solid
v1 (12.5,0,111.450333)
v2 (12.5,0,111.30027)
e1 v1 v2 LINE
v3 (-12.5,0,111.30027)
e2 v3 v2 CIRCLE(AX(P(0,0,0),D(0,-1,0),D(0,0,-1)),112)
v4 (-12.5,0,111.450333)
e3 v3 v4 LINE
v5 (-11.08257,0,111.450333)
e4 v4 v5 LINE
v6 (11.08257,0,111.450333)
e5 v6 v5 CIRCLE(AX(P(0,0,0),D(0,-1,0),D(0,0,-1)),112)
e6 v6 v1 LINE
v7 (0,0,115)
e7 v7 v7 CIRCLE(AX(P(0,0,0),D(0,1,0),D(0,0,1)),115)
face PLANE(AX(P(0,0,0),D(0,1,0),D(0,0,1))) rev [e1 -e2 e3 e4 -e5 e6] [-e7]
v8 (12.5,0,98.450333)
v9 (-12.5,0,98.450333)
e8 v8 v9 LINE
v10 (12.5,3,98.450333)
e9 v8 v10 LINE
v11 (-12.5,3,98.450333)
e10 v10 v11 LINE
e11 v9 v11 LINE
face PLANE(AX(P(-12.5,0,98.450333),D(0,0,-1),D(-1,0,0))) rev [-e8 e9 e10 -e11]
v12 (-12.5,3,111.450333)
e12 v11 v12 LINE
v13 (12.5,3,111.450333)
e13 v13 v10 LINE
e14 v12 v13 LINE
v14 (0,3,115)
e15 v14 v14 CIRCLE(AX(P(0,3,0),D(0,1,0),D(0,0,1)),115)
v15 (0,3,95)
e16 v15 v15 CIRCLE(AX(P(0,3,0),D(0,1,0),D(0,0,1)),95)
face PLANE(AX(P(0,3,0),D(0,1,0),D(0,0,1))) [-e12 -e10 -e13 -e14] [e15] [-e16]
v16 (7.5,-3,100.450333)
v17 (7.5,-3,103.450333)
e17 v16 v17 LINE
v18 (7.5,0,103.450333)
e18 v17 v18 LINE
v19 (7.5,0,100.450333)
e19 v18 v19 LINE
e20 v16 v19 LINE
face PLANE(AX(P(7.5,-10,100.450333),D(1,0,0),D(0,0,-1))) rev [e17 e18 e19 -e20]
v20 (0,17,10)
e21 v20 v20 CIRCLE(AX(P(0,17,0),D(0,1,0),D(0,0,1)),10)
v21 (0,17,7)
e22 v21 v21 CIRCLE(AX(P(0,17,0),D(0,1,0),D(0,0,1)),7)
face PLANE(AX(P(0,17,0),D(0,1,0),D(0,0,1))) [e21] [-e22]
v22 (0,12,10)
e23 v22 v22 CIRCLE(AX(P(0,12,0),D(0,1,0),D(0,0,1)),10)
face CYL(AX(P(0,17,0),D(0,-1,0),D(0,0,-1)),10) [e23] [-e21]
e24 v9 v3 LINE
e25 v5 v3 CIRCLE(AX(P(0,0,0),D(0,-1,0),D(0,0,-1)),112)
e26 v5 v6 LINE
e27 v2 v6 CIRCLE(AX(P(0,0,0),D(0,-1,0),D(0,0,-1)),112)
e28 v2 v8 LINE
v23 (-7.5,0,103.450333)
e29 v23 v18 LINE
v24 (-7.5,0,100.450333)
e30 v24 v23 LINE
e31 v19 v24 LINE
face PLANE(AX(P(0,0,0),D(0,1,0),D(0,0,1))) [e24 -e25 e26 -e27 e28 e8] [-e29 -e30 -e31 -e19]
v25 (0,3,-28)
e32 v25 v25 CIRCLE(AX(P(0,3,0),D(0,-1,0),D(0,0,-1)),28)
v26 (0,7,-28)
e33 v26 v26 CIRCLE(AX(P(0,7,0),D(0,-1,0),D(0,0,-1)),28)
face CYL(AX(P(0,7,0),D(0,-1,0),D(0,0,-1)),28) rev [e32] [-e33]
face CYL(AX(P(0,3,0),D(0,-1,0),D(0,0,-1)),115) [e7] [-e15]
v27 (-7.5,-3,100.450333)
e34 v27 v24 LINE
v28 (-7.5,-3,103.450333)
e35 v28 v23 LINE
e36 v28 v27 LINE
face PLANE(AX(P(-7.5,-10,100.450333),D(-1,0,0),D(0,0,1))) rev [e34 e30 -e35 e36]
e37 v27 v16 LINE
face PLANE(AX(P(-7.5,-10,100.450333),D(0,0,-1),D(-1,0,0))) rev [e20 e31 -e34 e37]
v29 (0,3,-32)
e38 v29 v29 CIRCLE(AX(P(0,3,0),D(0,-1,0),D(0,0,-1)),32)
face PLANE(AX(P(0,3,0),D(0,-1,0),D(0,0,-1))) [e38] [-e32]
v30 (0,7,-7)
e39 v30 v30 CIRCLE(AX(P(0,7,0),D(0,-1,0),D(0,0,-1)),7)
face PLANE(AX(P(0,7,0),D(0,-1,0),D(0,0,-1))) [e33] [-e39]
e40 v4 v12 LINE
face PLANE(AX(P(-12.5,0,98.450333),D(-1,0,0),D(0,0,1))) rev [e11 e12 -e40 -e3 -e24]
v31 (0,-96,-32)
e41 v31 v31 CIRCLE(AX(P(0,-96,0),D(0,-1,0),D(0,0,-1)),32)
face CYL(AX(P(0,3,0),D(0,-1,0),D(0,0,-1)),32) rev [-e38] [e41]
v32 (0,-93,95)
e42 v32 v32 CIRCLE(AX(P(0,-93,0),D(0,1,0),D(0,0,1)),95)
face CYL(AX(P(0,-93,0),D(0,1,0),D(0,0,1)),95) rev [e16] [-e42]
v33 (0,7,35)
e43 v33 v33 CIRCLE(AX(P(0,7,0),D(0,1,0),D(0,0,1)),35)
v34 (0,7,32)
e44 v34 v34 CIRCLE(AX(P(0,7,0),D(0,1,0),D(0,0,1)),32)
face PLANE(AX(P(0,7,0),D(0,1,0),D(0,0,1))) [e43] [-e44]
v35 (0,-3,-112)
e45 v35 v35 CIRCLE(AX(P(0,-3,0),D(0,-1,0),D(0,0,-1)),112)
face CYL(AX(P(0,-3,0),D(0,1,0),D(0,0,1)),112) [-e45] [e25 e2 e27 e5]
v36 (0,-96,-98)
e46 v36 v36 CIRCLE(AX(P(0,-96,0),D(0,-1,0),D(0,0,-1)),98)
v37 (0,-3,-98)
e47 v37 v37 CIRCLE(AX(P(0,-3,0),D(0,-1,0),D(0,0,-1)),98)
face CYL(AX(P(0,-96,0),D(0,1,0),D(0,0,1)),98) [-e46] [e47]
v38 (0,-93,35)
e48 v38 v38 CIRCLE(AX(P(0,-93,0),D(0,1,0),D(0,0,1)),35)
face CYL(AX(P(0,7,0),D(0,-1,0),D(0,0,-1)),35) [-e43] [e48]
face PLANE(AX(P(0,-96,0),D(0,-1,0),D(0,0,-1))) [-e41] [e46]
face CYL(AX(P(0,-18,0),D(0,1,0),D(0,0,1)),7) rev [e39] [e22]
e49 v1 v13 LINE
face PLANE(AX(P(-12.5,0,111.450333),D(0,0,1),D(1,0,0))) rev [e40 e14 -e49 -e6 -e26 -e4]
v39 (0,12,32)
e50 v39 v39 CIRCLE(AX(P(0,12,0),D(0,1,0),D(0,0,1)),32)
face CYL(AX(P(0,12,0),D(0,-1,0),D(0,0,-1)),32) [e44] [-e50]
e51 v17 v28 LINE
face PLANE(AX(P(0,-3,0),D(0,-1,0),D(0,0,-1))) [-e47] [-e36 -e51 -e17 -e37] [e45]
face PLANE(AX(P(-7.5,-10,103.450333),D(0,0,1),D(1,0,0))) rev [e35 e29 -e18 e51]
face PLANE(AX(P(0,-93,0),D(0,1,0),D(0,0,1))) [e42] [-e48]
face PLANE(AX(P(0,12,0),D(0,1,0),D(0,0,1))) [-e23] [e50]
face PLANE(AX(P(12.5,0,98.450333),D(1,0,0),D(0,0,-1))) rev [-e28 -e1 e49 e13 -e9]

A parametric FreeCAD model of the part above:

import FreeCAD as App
import Part
import Sketcher

V = App.Vector


def add_polygon(sketch, points):
    """Adds a closed chain of lines whose ends are joined by coincident constraints."""
    first, n = sketch.GeometryCount, len(points)
    for a, b in zip(points, points[1:] + points[:1]):
        sketch.addGeometry(Part.LineSegment(App.Vector(*a, 0), App.Vector(*b, 0)), False)
    for i in range(n):
        sketch.addConstraint(Sketcher.Constraint("Coincident", first + i, 2, first + (i + 1) % n, 1))

doc = App.newDocument("Part")
body = doc.addObject("PartDesign::Body", "Body")

# Sketch on XZ plane
sketch1 = body.newObject("Sketcher::SketchObject", "Sketch")
sketch1.AttachmentSupport = (doc.getObject("XZ_Plane"), [""])
sketch1.MapMode = "FlatFace"
sketch1.addGeometry(Part.Circle(V(0, 0, 0), V(0, 0, 1), 115), False)
sketch1.addConstraint([
    Sketcher.Constraint("Coincident", 0, 3, -1, 1),
    Sketcher.Constraint("Diameter", 0, 230.0),
])
pad1 = body.newObject("PartDesign::Pad", "Pad")
pad1.Profile = sketch1
pad1.Length = 3
pad1.Reversed = True

# Sketch on XZ plane
sketch2 = body.newObject("Sketcher::SketchObject", "Sketch001")
sketch2.AttachmentSupport = (doc.getObject("XZ_Plane"), [""])
sketch2.MapMode = "FlatFace"
sketch2.addGeometry(Part.Circle(V(0, 0, 0), V(0, 0, 1), 112), False)
sketch2.addConstraint([
    Sketcher.Constraint("Coincident", 0, 3, -1, 1),
    Sketcher.Constraint("Diameter", 0, 224.0),
])
pad2 = body.newObject("PartDesign::Pad", "Pad001")
pad2.Profile = sketch2
pad2.Length = 3

# Sketch on XZ plane
sketch3 = body.newObject("Sketcher::SketchObject", "Sketch002")
sketch3.AttachmentSupport = (doc.getObject("XZ_Plane"), [""])
sketch3.MapMode = "FlatFace"
sketch3.AttachmentOffset = App.Placement(V(0, 0, 3), App.Rotation())
sketch3.addGeometry(Part.Circle(V(0, 0, 0), V(0, 0, 1), 98), False)
sketch3.addConstraint([
    Sketcher.Constraint("Coincident", 0, 3, -1, 1),
    Sketcher.Constraint("Diameter", 0, 196.0),
])
pad3 = body.newObject("PartDesign::Pad", "Pad002")
pad3.Profile = sketch3
pad3.Length = 93

# Sketch on XZ plane
sketch4 = body.newObject("Sketcher::SketchObject", "Sketch003")
sketch4.AttachmentSupport = (doc.getObject("XZ_Plane"), [""])
sketch4.MapMode = "FlatFace"
sketch4.AttachmentOffset = App.Placement(V(0, 0, -3), App.Rotation())
sketch4.addGeometry(Part.Circle(V(0, 0, 0), V(0, 0, 1), 95), False)
sketch4.addConstraint([
    Sketcher.Constraint("Coincident", 0, 3, -1, 1),
    Sketcher.Constraint("Diameter", 0, 190.0),
])
pocket1 = body.newObject("PartDesign::Pocket", "Pocket")
pocket1.Profile = sketch4
pocket1.Length = 96
pocket1.Reversed = True

# Sketch on XZ plane
sketch5 = body.newObject("Sketcher::SketchObject", "Sketch004")
sketch5.AttachmentSupport = (doc.getObject("XZ_Plane"), [""])
sketch5.MapMode = "FlatFace"
sketch5.AttachmentOffset = App.Placement(V(0, 0, 93), App.Rotation())
sketch5.addGeometry(Part.Circle(V(0, 0, 0), V(0, 0, 1), 35), False)
sketch5.addConstraint([
    Sketcher.Constraint("Coincident", 0, 3, -1, 1),
    Sketcher.Constraint("Diameter", 0, 70.0),
])
pad4 = body.newObject("PartDesign::Pad", "Pad003")
pad4.Profile = sketch5
pad4.Length = 100
pad4.Reversed = True

# Sketch on XZ plane
sketch6 = body.newObject("Sketcher::SketchObject", "Sketch005")
sketch6.AttachmentSupport = (doc.getObject("XZ_Plane"), [""])
sketch6.MapMode = "FlatFace"
sketch6.AttachmentOffset = App.Placement(V(0, 0, -7), App.Rotation())
sketch6.addGeometry(Part.Circle(V(0, 0, 0), V(0, 0, 1), 32), False)
sketch6.addConstraint([
    Sketcher.Constraint("Coincident", 0, 3, -1, 1),
    Sketcher.Constraint("Diameter", 0, 64.0),
])
pad5 = body.newObject("PartDesign::Pad", "Pad004")
pad5.Profile = sketch6
pad5.Length = 5
pad5.Reversed = True

# Sketch on XZ plane
sketch7 = body.newObject("Sketcher::SketchObject", "Sketch006")
sketch7.AttachmentSupport = (doc.getObject("XZ_Plane"), [""])
sketch7.MapMode = "FlatFace"
sketch7.AttachmentOffset = App.Placement(V(0, 0, 96), App.Rotation())
sketch7.addGeometry(Part.Circle(V(0, 0, 0), V(0, 0, 1), 32), False)
sketch7.addConstraint([
    Sketcher.Constraint("Coincident", 0, 3, -1, 1),
    Sketcher.Constraint("Diameter", 0, 64.0),
])
pocket2 = body.newObject("PartDesign::Pocket", "Pocket001")
pocket2.Profile = sketch7
pocket2.Length = 99

# Sketch on XZ plane
sketch8 = body.newObject("Sketcher::SketchObject", "Sketch007")
sketch8.AttachmentSupport = (doc.getObject("XZ_Plane"), [""])
sketch8.MapMode = "FlatFace"
sketch8.AttachmentOffset = App.Placement(V(0, 0, -3), App.Rotation())
sketch8.addGeometry(Part.Circle(V(0, 0, 0), V(0, 0, 1), 28), False)
sketch8.addConstraint([
    Sketcher.Constraint("Coincident", 0, 3, -1, 1),
    Sketcher.Constraint("Diameter", 0, 56.0),
])
pocket3 = body.newObject("PartDesign::Pocket", "Pocket002")
pocket3.Profile = sketch8
pocket3.Length = 4

# Sketch on XZ plane
sketch9 = body.newObject("Sketcher::SketchObject", "Sketch008")
sketch9.AttachmentSupport = (doc.getObject("XZ_Plane"), [""])
sketch9.MapMode = "FlatFace"
sketch9.AttachmentOffset = App.Placement(V(0, 0, -12), App.Rotation())
sketch9.addGeometry(Part.Circle(V(0, 0, 0), V(0, 0, 1), 10), False)
sketch9.addConstraint([
    Sketcher.Constraint("Coincident", 0, 3, -1, 1),
    Sketcher.Constraint("Diameter", 0, 20.0),
])
pad6 = body.newObject("PartDesign::Pad", "Pad005")
pad6.Profile = sketch9
pad6.Length = 5
pad6.Reversed = True

# Sketch on XZ plane
sketch10 = body.newObject("Sketcher::SketchObject", "Sketch009")
sketch10.AttachmentSupport = (doc.getObject("XZ_Plane"), [""])
sketch10.MapMode = "FlatFace"
sketch10.AttachmentOffset = App.Placement(V(0, 0, -17), App.Rotation())
sketch10.addGeometry(Part.Circle(V(0, 0, 0), V(0, 0, 1), 7), False)
sketch10.addConstraint([
    Sketcher.Constraint("Coincident", 0, 3, -1, 1),
    Sketcher.Constraint("Diameter", 0, 14.0),
])
pocket4 = body.newObject("PartDesign::Pocket", "Pocket003")
pocket4.Profile = sketch10
pocket4.Length = 35
pocket4.Reversed = True

# Sketch on XZ plane
sketch11 = body.newObject("Sketcher::SketchObject", "Sketch010")
sketch11.AttachmentSupport = (doc.getObject("XZ_Plane"), [""])
sketch11.MapMode = "FlatFace"
sketch11.AttachmentOffset = App.Placement(V(0, 0, -10), App.Rotation())
add_polygon(sketch11, [(-12.5, 98.450333), (-12.5, 111.450333), (12.5, 111.450333), (12.5, 98.450333)])  # lines 0-3
sketch11.addConstraint([
    Sketcher.Constraint("Vertical", 0),
    Sketcher.Constraint("Horizontal", 1),
    Sketcher.Constraint("Vertical", 2),
    Sketcher.Constraint("Horizontal", 3),
    Sketcher.Constraint("DistanceX", 1, 1, 1, 2, 25.0),
    Sketcher.Constraint("DistanceY", 0, 1, 0, 2, 13.0),
    Sketcher.Constraint("DistanceX", 0, 2, -1, 1, 12.5),
    Sketcher.Constraint("DistanceY", -1, 1, 0, 2, 111.450333),
])
pocket5 = body.newObject("PartDesign::Pocket", "Pocket004")
pocket5.Profile = sketch11
pocket5.Length = 10
pocket5.Reversed = True

# Sketch on XZ plane
sketch12 = body.newObject("Sketcher::SketchObject", "Sketch011")
sketch12.AttachmentSupport = (doc.getObject("XZ_Plane"), [""])
sketch12.MapMode = "FlatFace"
add_polygon(sketch12, [(-7.5, 100.450333), (-7.5, 103.450333), (7.5, 103.450333), (7.5, 100.450333)])  # lines 0-3
sketch12.addConstraint([
    Sketcher.Constraint("Vertical", 0),
    Sketcher.Constraint("Horizontal", 1),
    Sketcher.Constraint("Vertical", 2),
    Sketcher.Constraint("Horizontal", 3),
    Sketcher.Constraint("DistanceX", 1, 1, 1, 2, 15.0),
    Sketcher.Constraint("DistanceY", 0, 1, 0, 2, 3.0),
    Sketcher.Constraint("DistanceX", 0, 2, -1, 1, 7.5),
    Sketcher.Constraint("DistanceY", -1, 1, 0, 2, 103.450333),
])
pocket6 = body.newObject("PartDesign::Pocket", "Pocket005")
pocket6.Profile = sketch12
pocket6.Length = 10
pocket6.Reversed = True

doc.recompute()
